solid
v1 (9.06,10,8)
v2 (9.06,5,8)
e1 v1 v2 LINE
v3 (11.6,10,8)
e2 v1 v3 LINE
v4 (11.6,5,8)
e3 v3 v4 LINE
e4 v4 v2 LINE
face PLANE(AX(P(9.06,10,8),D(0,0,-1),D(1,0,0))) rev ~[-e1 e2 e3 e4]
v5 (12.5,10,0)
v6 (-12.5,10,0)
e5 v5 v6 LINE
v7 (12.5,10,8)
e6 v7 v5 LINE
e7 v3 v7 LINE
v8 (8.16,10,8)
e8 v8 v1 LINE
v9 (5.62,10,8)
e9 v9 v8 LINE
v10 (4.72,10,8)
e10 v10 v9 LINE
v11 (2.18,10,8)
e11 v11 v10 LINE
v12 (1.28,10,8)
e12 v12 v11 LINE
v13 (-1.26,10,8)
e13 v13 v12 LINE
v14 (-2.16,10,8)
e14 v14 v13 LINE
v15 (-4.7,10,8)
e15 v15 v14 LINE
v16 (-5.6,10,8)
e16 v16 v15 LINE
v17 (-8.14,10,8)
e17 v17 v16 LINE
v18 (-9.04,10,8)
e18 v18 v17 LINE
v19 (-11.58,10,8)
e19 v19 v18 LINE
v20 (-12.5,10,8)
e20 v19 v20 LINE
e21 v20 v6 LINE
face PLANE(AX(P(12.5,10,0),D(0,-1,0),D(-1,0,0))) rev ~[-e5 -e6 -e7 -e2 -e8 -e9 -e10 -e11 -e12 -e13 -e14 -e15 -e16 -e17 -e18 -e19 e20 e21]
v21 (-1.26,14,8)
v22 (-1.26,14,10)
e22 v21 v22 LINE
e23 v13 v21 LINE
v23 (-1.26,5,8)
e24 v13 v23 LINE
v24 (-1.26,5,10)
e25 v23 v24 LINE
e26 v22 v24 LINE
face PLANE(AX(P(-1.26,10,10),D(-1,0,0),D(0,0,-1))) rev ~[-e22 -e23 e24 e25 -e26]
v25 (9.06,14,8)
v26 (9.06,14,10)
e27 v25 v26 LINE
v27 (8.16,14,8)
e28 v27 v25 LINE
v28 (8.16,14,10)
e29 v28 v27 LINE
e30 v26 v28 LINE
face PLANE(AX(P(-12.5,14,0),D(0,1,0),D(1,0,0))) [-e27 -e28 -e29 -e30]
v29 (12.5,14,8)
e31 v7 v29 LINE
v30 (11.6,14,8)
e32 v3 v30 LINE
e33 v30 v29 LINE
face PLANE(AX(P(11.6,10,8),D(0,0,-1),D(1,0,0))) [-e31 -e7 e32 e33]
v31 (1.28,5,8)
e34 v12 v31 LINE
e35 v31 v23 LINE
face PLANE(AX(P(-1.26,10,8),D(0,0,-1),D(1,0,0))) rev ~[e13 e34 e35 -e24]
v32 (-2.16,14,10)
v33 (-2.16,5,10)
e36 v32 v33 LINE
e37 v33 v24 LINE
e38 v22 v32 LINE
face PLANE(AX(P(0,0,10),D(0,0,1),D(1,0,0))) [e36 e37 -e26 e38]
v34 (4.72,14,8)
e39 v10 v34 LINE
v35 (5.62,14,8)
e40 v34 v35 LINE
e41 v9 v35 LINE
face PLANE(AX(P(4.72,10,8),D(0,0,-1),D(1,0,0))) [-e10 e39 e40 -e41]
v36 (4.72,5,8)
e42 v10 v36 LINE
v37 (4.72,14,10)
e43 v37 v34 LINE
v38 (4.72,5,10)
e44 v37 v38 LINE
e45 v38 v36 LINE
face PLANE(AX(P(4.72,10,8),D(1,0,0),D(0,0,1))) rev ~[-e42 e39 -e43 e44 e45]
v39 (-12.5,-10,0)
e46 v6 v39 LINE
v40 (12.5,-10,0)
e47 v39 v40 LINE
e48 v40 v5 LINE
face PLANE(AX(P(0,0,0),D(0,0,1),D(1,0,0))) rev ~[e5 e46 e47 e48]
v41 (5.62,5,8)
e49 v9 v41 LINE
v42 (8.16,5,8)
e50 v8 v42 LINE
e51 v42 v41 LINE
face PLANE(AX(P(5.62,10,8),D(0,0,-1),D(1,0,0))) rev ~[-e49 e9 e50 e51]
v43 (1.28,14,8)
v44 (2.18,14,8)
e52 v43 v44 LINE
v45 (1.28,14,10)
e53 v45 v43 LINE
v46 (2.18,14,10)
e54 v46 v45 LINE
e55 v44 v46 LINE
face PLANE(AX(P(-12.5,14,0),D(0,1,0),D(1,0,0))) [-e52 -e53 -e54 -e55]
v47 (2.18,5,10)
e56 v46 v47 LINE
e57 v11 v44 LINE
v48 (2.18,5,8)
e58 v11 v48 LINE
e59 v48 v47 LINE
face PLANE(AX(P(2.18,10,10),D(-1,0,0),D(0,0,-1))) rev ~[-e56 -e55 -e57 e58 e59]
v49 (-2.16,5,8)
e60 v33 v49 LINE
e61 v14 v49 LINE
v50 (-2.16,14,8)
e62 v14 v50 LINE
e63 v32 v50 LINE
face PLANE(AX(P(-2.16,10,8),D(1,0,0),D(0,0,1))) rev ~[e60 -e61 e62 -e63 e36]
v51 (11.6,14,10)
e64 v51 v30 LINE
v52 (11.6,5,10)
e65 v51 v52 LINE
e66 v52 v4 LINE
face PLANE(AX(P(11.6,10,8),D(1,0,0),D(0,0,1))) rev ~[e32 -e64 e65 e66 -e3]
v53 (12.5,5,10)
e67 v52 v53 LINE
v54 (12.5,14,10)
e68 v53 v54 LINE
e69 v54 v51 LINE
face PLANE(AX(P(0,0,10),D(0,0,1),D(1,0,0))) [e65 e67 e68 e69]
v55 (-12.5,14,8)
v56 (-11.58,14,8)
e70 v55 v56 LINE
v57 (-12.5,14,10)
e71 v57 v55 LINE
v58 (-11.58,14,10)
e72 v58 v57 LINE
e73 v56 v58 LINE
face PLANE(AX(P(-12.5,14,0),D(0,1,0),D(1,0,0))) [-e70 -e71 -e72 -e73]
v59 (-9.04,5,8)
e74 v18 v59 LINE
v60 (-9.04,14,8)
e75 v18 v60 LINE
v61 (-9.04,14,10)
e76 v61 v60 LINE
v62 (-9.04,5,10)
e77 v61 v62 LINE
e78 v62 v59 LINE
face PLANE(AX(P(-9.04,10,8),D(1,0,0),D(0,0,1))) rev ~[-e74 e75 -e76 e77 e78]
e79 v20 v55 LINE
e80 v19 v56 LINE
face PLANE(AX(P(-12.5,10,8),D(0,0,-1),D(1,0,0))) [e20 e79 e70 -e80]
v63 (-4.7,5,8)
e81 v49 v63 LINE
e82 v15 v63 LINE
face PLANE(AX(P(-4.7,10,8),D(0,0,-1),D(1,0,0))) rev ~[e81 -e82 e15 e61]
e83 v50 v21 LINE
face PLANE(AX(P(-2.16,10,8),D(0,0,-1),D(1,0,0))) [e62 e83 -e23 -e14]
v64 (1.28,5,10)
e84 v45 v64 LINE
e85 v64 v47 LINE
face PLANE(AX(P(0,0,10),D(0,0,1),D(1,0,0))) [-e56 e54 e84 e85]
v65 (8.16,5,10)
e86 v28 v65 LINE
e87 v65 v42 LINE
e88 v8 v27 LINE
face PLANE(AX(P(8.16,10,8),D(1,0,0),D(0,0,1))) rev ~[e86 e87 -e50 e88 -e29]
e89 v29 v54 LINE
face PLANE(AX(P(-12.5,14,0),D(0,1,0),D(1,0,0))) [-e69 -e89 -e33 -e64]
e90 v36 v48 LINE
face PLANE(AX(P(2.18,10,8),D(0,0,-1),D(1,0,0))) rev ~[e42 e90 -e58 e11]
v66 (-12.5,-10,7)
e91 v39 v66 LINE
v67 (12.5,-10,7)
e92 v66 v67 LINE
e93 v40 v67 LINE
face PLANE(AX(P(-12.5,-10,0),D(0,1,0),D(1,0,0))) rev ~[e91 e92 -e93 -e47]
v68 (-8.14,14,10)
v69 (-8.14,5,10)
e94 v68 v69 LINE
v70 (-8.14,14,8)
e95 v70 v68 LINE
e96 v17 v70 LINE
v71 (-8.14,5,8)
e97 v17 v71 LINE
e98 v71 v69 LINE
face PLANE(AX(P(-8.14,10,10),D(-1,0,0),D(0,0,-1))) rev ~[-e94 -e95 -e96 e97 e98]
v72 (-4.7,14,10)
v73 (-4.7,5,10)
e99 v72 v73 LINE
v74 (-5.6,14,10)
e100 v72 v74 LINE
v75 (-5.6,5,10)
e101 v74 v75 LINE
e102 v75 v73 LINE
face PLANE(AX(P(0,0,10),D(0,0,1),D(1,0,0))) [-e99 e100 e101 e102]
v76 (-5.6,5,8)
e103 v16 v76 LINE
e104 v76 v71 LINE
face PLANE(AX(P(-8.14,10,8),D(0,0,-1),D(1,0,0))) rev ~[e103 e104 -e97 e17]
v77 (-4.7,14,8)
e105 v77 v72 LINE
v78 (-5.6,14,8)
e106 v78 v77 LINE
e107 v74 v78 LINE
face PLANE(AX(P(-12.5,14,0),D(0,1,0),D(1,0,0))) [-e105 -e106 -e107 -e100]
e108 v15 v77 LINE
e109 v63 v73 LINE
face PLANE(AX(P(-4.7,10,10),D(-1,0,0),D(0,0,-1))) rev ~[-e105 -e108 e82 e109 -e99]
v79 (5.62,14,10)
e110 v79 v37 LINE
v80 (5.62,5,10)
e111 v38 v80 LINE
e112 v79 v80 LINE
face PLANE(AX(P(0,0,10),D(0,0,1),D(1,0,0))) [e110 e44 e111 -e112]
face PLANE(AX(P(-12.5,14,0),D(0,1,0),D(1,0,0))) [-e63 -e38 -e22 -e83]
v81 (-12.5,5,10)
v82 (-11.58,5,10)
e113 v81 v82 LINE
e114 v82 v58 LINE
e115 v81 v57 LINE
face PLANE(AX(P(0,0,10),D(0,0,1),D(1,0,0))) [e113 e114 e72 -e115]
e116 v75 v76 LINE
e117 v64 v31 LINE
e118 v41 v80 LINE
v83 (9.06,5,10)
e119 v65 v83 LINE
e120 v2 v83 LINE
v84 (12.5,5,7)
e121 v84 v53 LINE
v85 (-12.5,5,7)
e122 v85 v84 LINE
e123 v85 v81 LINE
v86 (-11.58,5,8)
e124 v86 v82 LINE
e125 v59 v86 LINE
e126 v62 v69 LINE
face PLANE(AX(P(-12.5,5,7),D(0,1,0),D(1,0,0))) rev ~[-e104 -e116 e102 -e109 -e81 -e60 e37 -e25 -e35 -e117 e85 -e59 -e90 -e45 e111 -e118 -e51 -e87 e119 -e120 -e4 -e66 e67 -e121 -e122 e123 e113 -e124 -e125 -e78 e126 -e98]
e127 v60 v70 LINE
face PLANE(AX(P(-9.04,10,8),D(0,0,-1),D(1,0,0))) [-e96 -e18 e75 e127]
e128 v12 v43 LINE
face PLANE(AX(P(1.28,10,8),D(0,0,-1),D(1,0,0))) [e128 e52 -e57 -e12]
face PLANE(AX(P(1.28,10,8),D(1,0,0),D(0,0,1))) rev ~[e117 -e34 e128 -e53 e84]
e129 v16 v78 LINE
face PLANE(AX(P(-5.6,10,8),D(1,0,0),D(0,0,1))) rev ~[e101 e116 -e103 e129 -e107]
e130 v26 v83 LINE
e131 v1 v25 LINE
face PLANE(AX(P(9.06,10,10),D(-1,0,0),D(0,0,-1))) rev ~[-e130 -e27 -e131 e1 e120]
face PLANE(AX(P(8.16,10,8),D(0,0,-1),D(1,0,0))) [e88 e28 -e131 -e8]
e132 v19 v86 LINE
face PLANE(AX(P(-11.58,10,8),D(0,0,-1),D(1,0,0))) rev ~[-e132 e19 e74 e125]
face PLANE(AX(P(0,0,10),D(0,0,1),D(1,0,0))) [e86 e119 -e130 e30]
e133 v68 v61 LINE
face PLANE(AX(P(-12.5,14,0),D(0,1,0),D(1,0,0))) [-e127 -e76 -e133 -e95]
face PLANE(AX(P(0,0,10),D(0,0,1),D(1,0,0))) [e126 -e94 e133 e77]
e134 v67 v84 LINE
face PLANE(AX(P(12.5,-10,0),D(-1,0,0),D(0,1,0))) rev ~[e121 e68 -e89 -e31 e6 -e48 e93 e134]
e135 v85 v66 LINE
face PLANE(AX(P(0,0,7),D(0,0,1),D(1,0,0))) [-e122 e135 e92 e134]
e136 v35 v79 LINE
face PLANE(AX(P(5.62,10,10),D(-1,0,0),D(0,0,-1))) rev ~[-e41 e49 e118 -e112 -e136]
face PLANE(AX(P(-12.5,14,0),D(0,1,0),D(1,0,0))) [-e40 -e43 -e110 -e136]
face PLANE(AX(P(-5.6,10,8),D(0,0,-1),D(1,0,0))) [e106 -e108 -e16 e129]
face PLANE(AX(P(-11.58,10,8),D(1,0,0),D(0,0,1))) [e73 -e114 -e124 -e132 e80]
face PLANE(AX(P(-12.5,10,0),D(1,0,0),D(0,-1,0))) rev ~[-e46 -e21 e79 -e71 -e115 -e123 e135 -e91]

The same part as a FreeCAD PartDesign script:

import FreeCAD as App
import Part
import Sketcher
Q = App.Units.Quantity


def add_polygon(sketch, points):
    """Adds a closed chain of lines whose ends are joined by coincident constraints."""
    first, n = sketch.GeometryCount, len(points)
    for a, b in zip(points, points[1:] + points[:1]):
        sketch.addGeometry(Part.LineSegment(App.Vector(*a, 0), App.Vector(*b, 0)), False)
    for i in range(n):
        sketch.addConstraint(Sketcher.Constraint("Coincident", first + i, 2, first + (i + 1) % n, 1))

doc = App.newDocument("Part")
params = doc.addObject("Spreadsheet::Sheet", "Params")
for row, (alias, value) in enumerate([
    ("sketch1_width", "25 mm"),
    ("sketch1_height", "20 mm"),
    ("pad1_length", "7 mm"),
    ("sketch2_height", "5 mm"),
    ("sketch2_width", "25 mm"),
    ("pad2_length", "3 mm"),
    ("sketch3_height", "2 mm"),
    ("sketch3_width", "0.9 mm"),
    ("sketch3_width2", "0.92 mm"),
    ("pad3_length", "4 mm"),
    ("sketch4_height", "2 mm"),
    ("sketch4_width", "2.54 mm"),
], start=1):
    params.set(f"A{row}", alias)
    params.set(f"B{row}", "=" + value)
    params.setAlias(f"B{row}", alias)

body = doc.addObject("PartDesign::Body", "Body")

# Sketch on XY plane
sketch1 = body.newObject("Sketcher::SketchObject", "Sketch")
sketch1.AttachmentSupport = (doc.getObject("XY_Plane"), [""])
sketch1.MapMode = "FlatFace"
add_polygon(sketch1, [(-12, 10), (-12, -10), (12, -10), (12, 10)])  # lines 0-3
sketch1.addConstraint([
    Sketcher.Constraint("Vertical", 0),
    Sketcher.Constraint("Horizontal", 1),
    Sketcher.Constraint("Vertical", 2),
    Sketcher.Constraint("Horizontal", 3),
    Sketcher.Constraint("Symmetric", 0, 2, 2, 2, -1, 1),
    Sketcher.Constraint("DistanceX", 1, 1, 1, 2, Q("25 mm")),
    Sketcher.Constraint("DistanceY", 0, 2, 0, 1, Q("20 mm")),
])
sketch1.setExpression("Constraints[9]", "Params.sketch1_width")
sketch1.setExpression("Constraints[10]", "Params.sketch1_height")
pad1 = body.newObject("PartDesign::Pad", "Pad")
pad1.Profile = sketch1
pad1.setExpression("Length", "Params.pad1_length")

# Sketch on XY plane
sketch2 = body.newObject("Sketcher::SketchObject", "Sketch001")
sketch2.AttachmentSupport = (doc.getObject("XY_Plane"), [""])
sketch2.MapMode = "FlatFace"
sketch2.AttachmentOffset = App.Placement(App.Vector(0, 0, 7), App.Rotation())
add_polygon(sketch2, [(-12, 5), (12, 5), (12, 10), (-12, 10)])  # lines 0-3
sketch2.addConstraint([
    Sketcher.Constraint("Horizontal", 0),
    Sketcher.Constraint("Vertical", 1),
    Sketcher.Constraint("Horizontal", 2),
    Sketcher.Constraint("Vertical", 3),
    Sketcher.Constraint("DistanceY", 1, 1, 1, 2, Q("5 mm")),
    Sketcher.Constraint("DistanceY", -1, 1, 0, 2, Q("5 mm")),
    Sketcher.Constraint("DistanceX", 0, 1, 0, 2, Q("25 mm")),
    Sketcher.Constraint("DistanceX", -1, 1, 0, 2, Q("12.5 mm")),
])
sketch2.setExpression("Constraints[8]", "Params.sketch2_height")
sketch2.setExpression("Constraints[10]", "Params.sketch2_width")
pad2 = body.newObject("PartDesign::Pad", "Pad001")
pad2.Profile = sketch2
pad2.setExpression("Length", "Params.pad2_length")

# Sketch on XZ plane
sketch3 = body.newObject("Sketcher::SketchObject", "Sketch002")
sketch3.AttachmentSupport = (doc.getObject("XZ_Plane"), [""])
sketch3.MapMode = "FlatFace"
sketch3.AttachmentOffset = App.Placement(App.Vector(0, 0, -10), App.Rotation())
add_polygon(sketch3, [(-12.5, 10), (-11.6, 10), (-11.6, 8), (-12.5, 8)])  # lines 0-3
add_polygon(sketch3, [(-9, 10), (-8.1, 10), (-8.1, 8), (-9, 8)])  # lines 4-7
add_polygon(sketch3, [(-5.6, 10), (-4.7, 10), (-4.7, 8), (-5.6, 8)])  # lines 8-11
add_polygon(sketch3, [(-2.2, 10), (-1.3, 10), (-1.3, 8), (-2.2, 8)])  # lines 12-15
add_polygon(sketch3, [(1.3, 10), (2.2, 10), (2.2, 8), (1.3, 8)])  # lines 16-19
add_polygon(sketch3, [(4.7, 10), (5.6, 10), (5.6, 8), (4.7, 8)])  # lines 20-23
add_polygon(sketch3, [(8.2, 10), (9.1, 10), (9.1, 8), (8.2, 8)])  # lines 24-27
add_polygon(sketch3, [(12.5, 10), (12.5, 8), (11.6, 8), (11.6, 10)])  # lines 28-31
sketch3.addConstraint([
    Sketcher.Constraint("Horizontal", 0),
    Sketcher.Constraint("Vertical", 1),
    Sketcher.Constraint("Horizontal", 2),
    Sketcher.Constraint("Vertical", 3),
    Sketcher.Constraint("Horizontal", 4),
    Sketcher.Constraint("Vertical", 5),
    Sketcher.Constraint("Horizontal", 6),
    Sketcher.Constraint("Vertical", 7),
    Sketcher.Constraint("Horizontal", 8),
    Sketcher.Constraint("Vertical", 9),
    Sketcher.Constraint("Horizontal", 10),
    Sketcher.Constraint("Vertical", 11),
    Sketcher.Constraint("Horizontal", 12),
    Sketcher.Constraint("Vertical", 13),
    Sketcher.Constraint("Horizontal", 14),
    Sketcher.Constraint("Vertical", 15),
    Sketcher.Constraint("Horizontal", 16),
    Sketcher.Constraint("Vertical", 17),
    Sketcher.Constraint("Horizontal", 18),
    Sketcher.Constraint("Vertical", 19),
    Sketcher.Constraint("Horizontal", 20),
    Sketcher.Constraint("Vertical", 21),
    Sketcher.Constraint("Horizontal", 22),
    Sketcher.Constraint("Vertical", 23),
    Sketcher.Constraint("Horizontal", 24),
    Sketcher.Constraint("Vertical", 25),
    Sketcher.Constraint("Horizontal", 26),
    Sketcher.Constraint("Vertical", 27),
    Sketcher.Constraint("Vertical", 28),
    Sketcher.Constraint("Horizontal", 29),
    Sketcher.Constraint("Vertical", 30),
    Sketcher.Constraint("Horizontal", 31),
    Sketcher.Constraint("Symmetric", 2, 2, 28, 2, -2),
    Sketcher.Constraint("Horizontal", 3, 2, 4, 2),
    Sketcher.Constraint("Horizontal", 2, 2, 5, 2),
    Sketcher.Constraint("Horizontal", 7, 2, 8, 2),
    Sketcher.Constraint("Horizontal", 6, 2, 9, 2),
    Sketcher.Constraint("Horizontal", 11, 2, 12, 2),
    Sketcher.Constraint("Horizontal", 10, 2, 13, 2),
    Sketcher.Constraint("Horizontal", 15, 2, 16, 2),
    Sketcher.Constraint("Horizontal", 14, 2, 17, 2),
    Sketcher.Constraint("Horizontal", 19, 2, 20, 2),
    Sketcher.Constraint("Horizontal", 18, 2, 21, 2),
    Sketcher.Constraint("Horizontal", 23, 2, 24, 2),
    Sketcher.Constraint("Horizontal", 22, 2, 25, 2),
    Sketcher.Constraint("Horizontal", 27, 2, 30, 2),
    Sketcher.Constraint("Equal", 6, 8),
    Sketcher.Constraint("Equal", 10, 12),
    Sketcher.Constraint("Equal", 14, 16),
    Sketcher.Constraint("Equal", 18, 20),
    Sketcher.Constraint("Equal", 22, 24),
    Sketcher.Constraint("Equal", 26, 29),
    Sketcher.Constraint("DistanceY", 1, 2, 1, 1, Q("2 mm")),
    Sketcher.Constraint("DistanceX", 4, 1, 4, 2, Q("0.9 mm")),
    Sketcher.Constraint("DistanceX", 1, 2, 6, 2, Q("2.54 mm")),
    Sketcher.Constraint("DistanceX", 5, 2, 10, 2, Q("2.54 mm")),
    Sketcher.Constraint("DistanceX", 9, 2, 14, 2, Q("2.54 mm")),
    Sketcher.Constraint("DistanceX", 13, 2, 18, 2, Q("2.54 mm")),
    Sketcher.Constraint("DistanceX", 17, 2, 22, 2, Q("2.54 mm")),
    Sketcher.Constraint("DistanceX", 21, 2, 26, 2, Q("2.54 mm")),
    Sketcher.Constraint("DistanceX", 25, 2, 29, 2, Q("2.54 mm")),
    Sketcher.Constraint("DistanceY", -1, 1, 0, 2, Q("10 mm")),
    Sketcher.Constraint("DistanceX", 0, 1, 0, 2, Q("0.92 mm")),
])
sketch3.setExpression("Constraints[84]", "Params.sketch3_height")
sketch3.setExpression("Constraints[85]", "Params.sketch3_width")
sketch3.setExpression("Constraints[94]", "Params.sketch3_width2")
pad3 = body.newObject("PartDesign::Pad", "Pad002")
pad3.Profile = sketch3
pad3.setExpression("Length", "Params.pad3_length")
pad3.Reversed = True

# Sketch on XZ plane
sketch4 = body.newObject("Sketcher::SketchObject", "Sketch003")
sketch4.AttachmentSupport = (doc.getObject("XZ_Plane"), [""])
sketch4.MapMode = "FlatFace"
sketch4.AttachmentOffset = App.Placement(App.Vector(0, 0, -10), App.Rotation())
add_polygon(sketch4, [(-11.6, 8), (-11.6, 10), (-9, 10), (-9, 8)])  # lines 0-3
add_polygon(sketch4, [(9.1, 8), (9.1, 10), (11.6, 10), (11.6, 8)])  # lines 4-7
add_polygon(sketch4, [(5.6, 8), (5.6, 10), (8.2, 10), (8.2, 8)])  # lines 8-11
add_polygon(sketch4, [(2.2, 8), (2.2, 10), (4.7, 10), (4.7, 8)])  # lines 12-15
add_polygon(sketch4, [(-1.3, 8), (-1.3, 10), (1.3, 10), (1.3, 8)])  # lines 16-19
add_polygon(sketch4, [(-4.7, 8), (-4.7, 10), (-2.2, 10), (-2.2, 8)])  # lines 20-23
add_polygon(sketch4, [(-8.1, 8), (-8.1, 10), (-5.6, 10), (-5.6, 8)])  # lines 24-27
sketch4.addConstraint([
    Sketcher.Constraint("Vertical", 0),
    Sketcher.Constraint("Horizontal", 1),
    Sketcher.Constraint("Vertical", 2),
    Sketcher.Constraint("Horizontal", 3),
    Sketcher.Constraint("Vertical", 4),
    Sketcher.Constraint("Horizontal", 5),
    Sketcher.Constraint("Vertical", 6),
    Sketcher.Constraint("Horizontal", 7),
    Sketcher.Constraint("Vertical", 8),
    Sketcher.Constraint("Horizontal", 9),
    Sketcher.Constraint("Vertical", 10),
    Sketcher.Constraint("Horizontal", 11),
    Sketcher.Constraint("Vertical", 12),
    Sketcher.Constraint("Horizontal", 13),
    Sketcher.Constraint("Vertical", 14),
    Sketcher.Constraint("Horizontal", 15),
    Sketcher.Constraint("Vertical", 16),
    Sketcher.Constraint("Horizontal", 17),
    Sketcher.Constraint("Vertical", 18),
    Sketcher.Constraint("Horizontal", 19),
    Sketcher.Constraint("Vertical", 20),
    Sketcher.Constraint("Horizontal", 21),
    Sketcher.Constraint("Vertical", 22),
    Sketcher.Constraint("Horizontal", 23),
    Sketcher.Constraint("Vertical", 24),
    Sketcher.Constraint("Horizontal", 25),
    Sketcher.Constraint("Vertical", 26),
    Sketcher.Constraint("Horizontal", 27),
    Sketcher.Constraint("Horizontal", 1, 2, 4, 2),
    Sketcher.Constraint("Horizontal", 3, 2, 6, 2),
    Sketcher.Constraint("Horizontal", 5, 2, 8, 2),
    Sketcher.Constraint("Horizontal", 7, 2, 10, 2),
    Sketcher.Constraint("Horizontal", 9, 2, 12, 2),
    Sketcher.Constraint("Horizontal", 11, 2, 14, 2),
    Sketcher.Constraint("Horizontal", 13, 2, 16, 2),
    Sketcher.Constraint("Horizontal", 15, 2, 18, 2),
    Sketcher.Constraint("Horizontal", 17, 2, 20, 2),
    Sketcher.Constraint("Horizontal", 19, 2, 22, 2),
    Sketcher.Constraint("Horizontal", 21, 2, 24, 2),
    Sketcher.Constraint("Horizontal", 23, 2, 26, 2),
    Sketcher.Constraint("Equal", 3, 5),
    Sketcher.Constraint("Equal", 7, 9),
    Sketcher.Constraint("Equal", 11, 13),
    Sketcher.Constraint("Equal", 15, 17),
    Sketcher.Constraint("Equal", 19, 21),
    Sketcher.Constraint("Equal", 23, 25),
    Sketcher.Constraint("DistanceY", 0, 1, 0, 2, Q("2 mm")),
    Sketcher.Constraint("DistanceX", 1, 1, 1, 2, Q("2.54 mm")),
    Sketcher.Constraint("DistanceX", 9, 2, 4, 2, Q("0.9 mm")),
    Sketcher.Constraint("DistanceX", 13, 2, 8, 2, Q("0.9 mm")),
    Sketcher.Constraint("DistanceX", 17, 2, 12, 2, Q("0.9 mm")),
    Sketcher.Constraint("DistanceX", 21, 2, 16, 2, Q("0.9 mm")),
    Sketcher.Constraint("DistanceX", 1, 2, 24, 2, Q("0.9 mm")),
    Sketcher.Constraint("DistanceX", 25, 2, 20, 2, Q("0.9 mm")),
    Sketcher.Constraint("DistanceY", -1, 1, 0, 2, Q("10 mm")),
    Sketcher.Constraint("DistanceX", -1, 1, 5, 2, Q("11.6 mm")),
])
sketch4.setExpression("Constraints[74]", "Params.sketch4_height")
sketch4.setExpression("Constraints[75]", "Params.sketch4_width")
pocket1 = body.newObject("PartDesign::Pocket", "Pocket")
pocket1.Profile = sketch4
pocket1.Type = "ThroughAll"
pocket1.Midplane = True

doc.recompute()
